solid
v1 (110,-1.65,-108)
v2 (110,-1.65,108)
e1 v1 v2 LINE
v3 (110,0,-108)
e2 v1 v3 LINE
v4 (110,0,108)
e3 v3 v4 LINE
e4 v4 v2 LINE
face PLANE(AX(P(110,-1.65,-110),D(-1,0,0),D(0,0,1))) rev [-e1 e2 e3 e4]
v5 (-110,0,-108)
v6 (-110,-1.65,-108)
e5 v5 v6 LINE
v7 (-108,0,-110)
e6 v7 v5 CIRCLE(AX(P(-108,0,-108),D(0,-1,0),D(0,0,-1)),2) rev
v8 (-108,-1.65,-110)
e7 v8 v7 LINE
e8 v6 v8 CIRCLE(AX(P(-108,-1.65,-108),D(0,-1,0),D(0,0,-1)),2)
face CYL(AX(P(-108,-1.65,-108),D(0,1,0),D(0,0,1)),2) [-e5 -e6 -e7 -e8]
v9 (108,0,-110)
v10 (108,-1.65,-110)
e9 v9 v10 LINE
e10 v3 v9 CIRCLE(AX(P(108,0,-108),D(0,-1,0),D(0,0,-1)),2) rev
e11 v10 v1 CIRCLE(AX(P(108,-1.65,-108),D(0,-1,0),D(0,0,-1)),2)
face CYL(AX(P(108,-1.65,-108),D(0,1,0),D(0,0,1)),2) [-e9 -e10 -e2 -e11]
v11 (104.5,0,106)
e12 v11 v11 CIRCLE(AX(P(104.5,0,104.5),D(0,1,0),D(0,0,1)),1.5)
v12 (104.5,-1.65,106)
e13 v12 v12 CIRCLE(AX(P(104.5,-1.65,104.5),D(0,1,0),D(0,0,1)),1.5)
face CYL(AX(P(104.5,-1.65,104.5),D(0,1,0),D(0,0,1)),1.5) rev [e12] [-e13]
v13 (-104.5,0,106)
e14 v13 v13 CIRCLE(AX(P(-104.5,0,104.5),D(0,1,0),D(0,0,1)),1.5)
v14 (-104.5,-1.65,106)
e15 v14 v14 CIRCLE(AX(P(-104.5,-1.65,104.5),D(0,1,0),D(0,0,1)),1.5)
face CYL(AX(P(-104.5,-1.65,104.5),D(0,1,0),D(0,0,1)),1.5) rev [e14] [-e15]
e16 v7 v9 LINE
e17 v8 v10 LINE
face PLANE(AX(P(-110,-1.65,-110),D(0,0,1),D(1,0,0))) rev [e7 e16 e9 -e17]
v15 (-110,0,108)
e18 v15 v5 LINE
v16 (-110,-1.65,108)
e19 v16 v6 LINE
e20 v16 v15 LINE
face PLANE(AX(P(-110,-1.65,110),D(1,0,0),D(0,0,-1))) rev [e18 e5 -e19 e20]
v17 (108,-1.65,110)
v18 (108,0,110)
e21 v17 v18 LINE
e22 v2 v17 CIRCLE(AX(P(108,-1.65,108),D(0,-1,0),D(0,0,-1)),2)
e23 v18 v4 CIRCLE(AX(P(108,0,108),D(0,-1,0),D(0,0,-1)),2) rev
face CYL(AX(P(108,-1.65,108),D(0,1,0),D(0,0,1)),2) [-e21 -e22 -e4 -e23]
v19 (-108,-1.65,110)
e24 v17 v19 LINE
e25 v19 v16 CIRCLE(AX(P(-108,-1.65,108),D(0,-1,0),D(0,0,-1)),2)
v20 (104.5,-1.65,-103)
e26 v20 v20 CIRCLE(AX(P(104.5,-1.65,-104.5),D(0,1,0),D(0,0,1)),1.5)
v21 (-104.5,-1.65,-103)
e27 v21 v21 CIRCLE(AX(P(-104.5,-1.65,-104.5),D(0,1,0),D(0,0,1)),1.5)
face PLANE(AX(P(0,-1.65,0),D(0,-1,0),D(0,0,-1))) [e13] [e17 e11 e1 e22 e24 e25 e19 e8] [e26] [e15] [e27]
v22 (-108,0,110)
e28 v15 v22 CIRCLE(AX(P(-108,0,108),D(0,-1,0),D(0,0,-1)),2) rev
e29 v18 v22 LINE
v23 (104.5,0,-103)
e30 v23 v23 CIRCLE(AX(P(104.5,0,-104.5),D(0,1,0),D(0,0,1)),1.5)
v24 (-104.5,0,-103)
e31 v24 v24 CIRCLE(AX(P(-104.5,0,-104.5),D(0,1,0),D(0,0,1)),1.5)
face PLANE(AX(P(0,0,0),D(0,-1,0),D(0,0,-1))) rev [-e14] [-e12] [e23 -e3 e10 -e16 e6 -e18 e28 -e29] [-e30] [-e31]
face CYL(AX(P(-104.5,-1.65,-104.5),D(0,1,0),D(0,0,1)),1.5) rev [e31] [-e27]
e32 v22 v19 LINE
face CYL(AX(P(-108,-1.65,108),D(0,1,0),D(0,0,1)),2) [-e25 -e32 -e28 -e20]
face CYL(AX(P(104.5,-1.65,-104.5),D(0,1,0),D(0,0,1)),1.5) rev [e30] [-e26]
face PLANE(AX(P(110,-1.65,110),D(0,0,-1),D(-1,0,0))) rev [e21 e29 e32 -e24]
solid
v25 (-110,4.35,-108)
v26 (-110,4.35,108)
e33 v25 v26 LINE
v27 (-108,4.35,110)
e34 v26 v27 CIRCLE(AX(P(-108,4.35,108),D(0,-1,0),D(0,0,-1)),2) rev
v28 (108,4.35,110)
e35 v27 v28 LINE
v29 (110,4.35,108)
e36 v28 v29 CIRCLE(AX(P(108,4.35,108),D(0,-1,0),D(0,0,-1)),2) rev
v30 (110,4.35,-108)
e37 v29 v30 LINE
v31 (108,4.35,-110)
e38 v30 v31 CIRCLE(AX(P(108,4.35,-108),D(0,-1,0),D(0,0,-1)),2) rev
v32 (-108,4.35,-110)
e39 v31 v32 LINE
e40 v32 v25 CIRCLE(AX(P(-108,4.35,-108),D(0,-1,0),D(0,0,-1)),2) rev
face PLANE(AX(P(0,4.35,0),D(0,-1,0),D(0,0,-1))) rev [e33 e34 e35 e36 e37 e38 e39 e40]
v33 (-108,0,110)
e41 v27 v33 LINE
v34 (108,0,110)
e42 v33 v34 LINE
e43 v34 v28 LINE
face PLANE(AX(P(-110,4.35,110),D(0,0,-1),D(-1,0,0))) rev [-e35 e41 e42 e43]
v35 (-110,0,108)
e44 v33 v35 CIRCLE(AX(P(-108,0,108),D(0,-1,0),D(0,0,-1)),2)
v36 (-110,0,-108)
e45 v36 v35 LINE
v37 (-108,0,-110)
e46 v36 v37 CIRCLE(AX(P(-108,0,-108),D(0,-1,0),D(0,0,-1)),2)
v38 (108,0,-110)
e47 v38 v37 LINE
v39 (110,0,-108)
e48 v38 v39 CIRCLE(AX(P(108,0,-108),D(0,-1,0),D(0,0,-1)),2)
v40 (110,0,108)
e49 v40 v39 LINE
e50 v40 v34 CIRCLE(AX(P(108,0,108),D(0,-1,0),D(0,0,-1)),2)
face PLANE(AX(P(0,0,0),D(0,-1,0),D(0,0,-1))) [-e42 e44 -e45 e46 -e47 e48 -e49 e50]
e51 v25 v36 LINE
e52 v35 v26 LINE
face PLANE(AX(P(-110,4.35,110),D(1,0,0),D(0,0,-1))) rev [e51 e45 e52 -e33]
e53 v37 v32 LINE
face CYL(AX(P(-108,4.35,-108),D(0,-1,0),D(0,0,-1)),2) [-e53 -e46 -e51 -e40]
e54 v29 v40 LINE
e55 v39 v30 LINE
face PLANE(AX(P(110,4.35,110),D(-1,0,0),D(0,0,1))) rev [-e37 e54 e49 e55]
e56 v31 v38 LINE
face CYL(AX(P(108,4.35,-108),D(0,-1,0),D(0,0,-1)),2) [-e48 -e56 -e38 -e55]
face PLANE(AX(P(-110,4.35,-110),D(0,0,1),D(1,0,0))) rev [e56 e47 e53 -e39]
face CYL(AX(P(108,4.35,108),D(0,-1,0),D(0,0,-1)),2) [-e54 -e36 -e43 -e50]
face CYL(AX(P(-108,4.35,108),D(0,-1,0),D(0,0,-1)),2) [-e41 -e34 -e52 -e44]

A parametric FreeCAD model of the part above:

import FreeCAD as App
import Part
import Sketcher
Q = App.Units.Quantity


def edges_at(feature, points):
    """Names of the edges that pass closest to the given points."""
    edges = feature.Shape.Edges
    near = lambda p: min(range(len(edges)), key=lambda i: edges[i].distToShape(Part.Vertex(*p))[0])
    return sorted({f"Edge{near(p) + 1}" for p in points})


def add_polygon(sketch, points):
    """Adds a closed chain of lines whose ends are joined by coincident constraints."""
    first, n = sketch.GeometryCount, len(points)
    for a, b in zip(points, points[1:] + points[:1]):
        sketch.addGeometry(Part.LineSegment(App.Vector(*a, 0), App.Vector(*b, 0)), False)
    for i in range(n):
        sketch.addConstraint(Sketcher.Constraint("Coincident", first + i, 2, first + (i + 1) % n, 1))

doc = App.newDocument("Part")
body = doc.addObject("PartDesign::Body", "Body")

sketch1 = body.newObject("Sketcher::SketchObject", "Sketch")
sketch1.AttachmentSupport = (doc.getObject("XZ_Plane"), [""])
sketch1.MapMode = "FlatFace"
add_polygon(sketch1, [(-110, -110), (-110, 110), (110, 110), (110, -110)])
sketch1.addConstraint(Sketcher.Constraint("Vertical", 0))
sketch1.addConstraint(Sketcher.Constraint("Horizontal", 1))
sketch1.addConstraint(Sketcher.Constraint("Vertical", 2))
sketch1.addConstraint(Sketcher.Constraint("Horizontal", 3))
sketch1.addConstraint(Sketcher.Constraint("Symmetric", 0, 2, 2, 2, -1, 1))
sketch1.addConstraint(Sketcher.Constraint("Equal", 3, 0))
sketch1.addConstraint(Sketcher.Constraint("DistanceX", 1, 1, 1, 2, Q("220 mm")))
pad1 = body.newObject("PartDesign::Pad", "Pad")
pad1.Profile = sketch1
pad1.Length = 4.35
pad1.Reversed = True
doc.recompute()

fillet = body.newObject("PartDesign::Fillet", "Fillet")
fillet.Base = (pad1, edges_at(pad1, [
    (110, 2.175, 110),
    (-110, 2.175, 110),
    (-110, 2.175, -110),
    (110, 2.175, -110),
]))
fillet.Radius = 2
body2 = doc.addObject("PartDesign::Body", "Body001")

sketch2 = body2.newObject("Sketcher::SketchObject", "Sketch001")
sketch2.AttachmentSupport = (doc.getObject("XZ_Plane001"), [""])
sketch2.MapMode = "FlatFace"
add_polygon(sketch2, [(-110, 110), (-110, -110), (110, -110), (110, 110)])
sketch2.addConstraint(Sketcher.Constraint("Vertical", 0))
sketch2.addConstraint(Sketcher.Constraint("Horizontal", 1))
sketch2.addConstraint(Sketcher.Constraint("Vertical", 2))
sketch2.addConstraint(Sketcher.Constraint("Horizontal", 3))
sketch2.addConstraint(Sketcher.Constraint("Symmetric", 0, 2, 2, 2, -1, 1))
sketch2.addConstraint(Sketcher.Constraint("Equal", 3, 0))
sketch2.addConstraint(Sketcher.Constraint("DistanceX", 1, 1, 1, 2, Q("220 mm")))
pad2 = body2.newObject("PartDesign::Pad", "Pad001")
pad2.Profile = sketch2
pad2.Length = 1.65

sketch3 = body2.newObject("Sketcher::SketchObject", "Sketch002")
sketch3.AttachmentSupport = (doc.getObject("XZ_Plane001"), [""])
sketch3.MapMode = "FlatFace"
sketch3.addGeometry(Part.Circle(App.Vector(-104.5, -104.5, 0), App.Vector(0, 0, 1), 1.5), False)
sketch3.addGeometry(Part.Circle(App.Vector(104.5, -104.5, 0), App.Vector(0, 0, 1), 1.5), False)
sketch3.addGeometry(Part.Circle(App.Vector(104.5, 104.5, 0), App.Vector(0, 0, 1), 1.5), False)
sketch3.addGeometry(Part.Circle(App.Vector(-104.5, 104.5, 0), App.Vector(0, 0, 1), 1.5), False)
sketch3.addConstraint(Sketcher.Constraint("Equal", 0, 1))
sketch3.addConstraint(Sketcher.Constraint("Equal", 1, 2))
sketch3.addConstraint(Sketcher.Constraint("Equal", 2, 3))
sketch3.addConstraint(Sketcher.Constraint("Symmetric", 0, 3, 2, 3, -1, 1))
sketch3.addConstraint(Sketcher.Constraint("Symmetric", 1, 3, 3, 3, -1, 1))
sketch3.addConstraint(Sketcher.Constraint("Symmetric", 0, 3, 1, 3, -2))
sketch3.addConstraint(Sketcher.Constraint("Diameter", 0, Q("3 mm")))
sketch3.addConstraint(Sketcher.Constraint("DistanceX", 0, 3, 1, 3, Q("209 mm")))
sketch3.addConstraint(Sketcher.Constraint("DistanceY", 1, 3, 2, 3, Q("209 mm")))
pocket1 = body2.newObject("PartDesign::Pocket", "Pocket")
pocket1.Profile = sketch3
pocket1.Type = "ThroughAll"
pocket1.Reversed = True
doc.recompute()

fillet2 = body2.newObject("PartDesign::Fillet", "Fillet001")
fillet2.Base = (pocket1, edges_at(pocket1, [
    (-110, -0.825, -110),
    (-110, -0.825, 110),
    (110, -0.825, 110),
    (110, -0.825, -110),
]))
fillet2.Radius = 2

doc.recompute()
